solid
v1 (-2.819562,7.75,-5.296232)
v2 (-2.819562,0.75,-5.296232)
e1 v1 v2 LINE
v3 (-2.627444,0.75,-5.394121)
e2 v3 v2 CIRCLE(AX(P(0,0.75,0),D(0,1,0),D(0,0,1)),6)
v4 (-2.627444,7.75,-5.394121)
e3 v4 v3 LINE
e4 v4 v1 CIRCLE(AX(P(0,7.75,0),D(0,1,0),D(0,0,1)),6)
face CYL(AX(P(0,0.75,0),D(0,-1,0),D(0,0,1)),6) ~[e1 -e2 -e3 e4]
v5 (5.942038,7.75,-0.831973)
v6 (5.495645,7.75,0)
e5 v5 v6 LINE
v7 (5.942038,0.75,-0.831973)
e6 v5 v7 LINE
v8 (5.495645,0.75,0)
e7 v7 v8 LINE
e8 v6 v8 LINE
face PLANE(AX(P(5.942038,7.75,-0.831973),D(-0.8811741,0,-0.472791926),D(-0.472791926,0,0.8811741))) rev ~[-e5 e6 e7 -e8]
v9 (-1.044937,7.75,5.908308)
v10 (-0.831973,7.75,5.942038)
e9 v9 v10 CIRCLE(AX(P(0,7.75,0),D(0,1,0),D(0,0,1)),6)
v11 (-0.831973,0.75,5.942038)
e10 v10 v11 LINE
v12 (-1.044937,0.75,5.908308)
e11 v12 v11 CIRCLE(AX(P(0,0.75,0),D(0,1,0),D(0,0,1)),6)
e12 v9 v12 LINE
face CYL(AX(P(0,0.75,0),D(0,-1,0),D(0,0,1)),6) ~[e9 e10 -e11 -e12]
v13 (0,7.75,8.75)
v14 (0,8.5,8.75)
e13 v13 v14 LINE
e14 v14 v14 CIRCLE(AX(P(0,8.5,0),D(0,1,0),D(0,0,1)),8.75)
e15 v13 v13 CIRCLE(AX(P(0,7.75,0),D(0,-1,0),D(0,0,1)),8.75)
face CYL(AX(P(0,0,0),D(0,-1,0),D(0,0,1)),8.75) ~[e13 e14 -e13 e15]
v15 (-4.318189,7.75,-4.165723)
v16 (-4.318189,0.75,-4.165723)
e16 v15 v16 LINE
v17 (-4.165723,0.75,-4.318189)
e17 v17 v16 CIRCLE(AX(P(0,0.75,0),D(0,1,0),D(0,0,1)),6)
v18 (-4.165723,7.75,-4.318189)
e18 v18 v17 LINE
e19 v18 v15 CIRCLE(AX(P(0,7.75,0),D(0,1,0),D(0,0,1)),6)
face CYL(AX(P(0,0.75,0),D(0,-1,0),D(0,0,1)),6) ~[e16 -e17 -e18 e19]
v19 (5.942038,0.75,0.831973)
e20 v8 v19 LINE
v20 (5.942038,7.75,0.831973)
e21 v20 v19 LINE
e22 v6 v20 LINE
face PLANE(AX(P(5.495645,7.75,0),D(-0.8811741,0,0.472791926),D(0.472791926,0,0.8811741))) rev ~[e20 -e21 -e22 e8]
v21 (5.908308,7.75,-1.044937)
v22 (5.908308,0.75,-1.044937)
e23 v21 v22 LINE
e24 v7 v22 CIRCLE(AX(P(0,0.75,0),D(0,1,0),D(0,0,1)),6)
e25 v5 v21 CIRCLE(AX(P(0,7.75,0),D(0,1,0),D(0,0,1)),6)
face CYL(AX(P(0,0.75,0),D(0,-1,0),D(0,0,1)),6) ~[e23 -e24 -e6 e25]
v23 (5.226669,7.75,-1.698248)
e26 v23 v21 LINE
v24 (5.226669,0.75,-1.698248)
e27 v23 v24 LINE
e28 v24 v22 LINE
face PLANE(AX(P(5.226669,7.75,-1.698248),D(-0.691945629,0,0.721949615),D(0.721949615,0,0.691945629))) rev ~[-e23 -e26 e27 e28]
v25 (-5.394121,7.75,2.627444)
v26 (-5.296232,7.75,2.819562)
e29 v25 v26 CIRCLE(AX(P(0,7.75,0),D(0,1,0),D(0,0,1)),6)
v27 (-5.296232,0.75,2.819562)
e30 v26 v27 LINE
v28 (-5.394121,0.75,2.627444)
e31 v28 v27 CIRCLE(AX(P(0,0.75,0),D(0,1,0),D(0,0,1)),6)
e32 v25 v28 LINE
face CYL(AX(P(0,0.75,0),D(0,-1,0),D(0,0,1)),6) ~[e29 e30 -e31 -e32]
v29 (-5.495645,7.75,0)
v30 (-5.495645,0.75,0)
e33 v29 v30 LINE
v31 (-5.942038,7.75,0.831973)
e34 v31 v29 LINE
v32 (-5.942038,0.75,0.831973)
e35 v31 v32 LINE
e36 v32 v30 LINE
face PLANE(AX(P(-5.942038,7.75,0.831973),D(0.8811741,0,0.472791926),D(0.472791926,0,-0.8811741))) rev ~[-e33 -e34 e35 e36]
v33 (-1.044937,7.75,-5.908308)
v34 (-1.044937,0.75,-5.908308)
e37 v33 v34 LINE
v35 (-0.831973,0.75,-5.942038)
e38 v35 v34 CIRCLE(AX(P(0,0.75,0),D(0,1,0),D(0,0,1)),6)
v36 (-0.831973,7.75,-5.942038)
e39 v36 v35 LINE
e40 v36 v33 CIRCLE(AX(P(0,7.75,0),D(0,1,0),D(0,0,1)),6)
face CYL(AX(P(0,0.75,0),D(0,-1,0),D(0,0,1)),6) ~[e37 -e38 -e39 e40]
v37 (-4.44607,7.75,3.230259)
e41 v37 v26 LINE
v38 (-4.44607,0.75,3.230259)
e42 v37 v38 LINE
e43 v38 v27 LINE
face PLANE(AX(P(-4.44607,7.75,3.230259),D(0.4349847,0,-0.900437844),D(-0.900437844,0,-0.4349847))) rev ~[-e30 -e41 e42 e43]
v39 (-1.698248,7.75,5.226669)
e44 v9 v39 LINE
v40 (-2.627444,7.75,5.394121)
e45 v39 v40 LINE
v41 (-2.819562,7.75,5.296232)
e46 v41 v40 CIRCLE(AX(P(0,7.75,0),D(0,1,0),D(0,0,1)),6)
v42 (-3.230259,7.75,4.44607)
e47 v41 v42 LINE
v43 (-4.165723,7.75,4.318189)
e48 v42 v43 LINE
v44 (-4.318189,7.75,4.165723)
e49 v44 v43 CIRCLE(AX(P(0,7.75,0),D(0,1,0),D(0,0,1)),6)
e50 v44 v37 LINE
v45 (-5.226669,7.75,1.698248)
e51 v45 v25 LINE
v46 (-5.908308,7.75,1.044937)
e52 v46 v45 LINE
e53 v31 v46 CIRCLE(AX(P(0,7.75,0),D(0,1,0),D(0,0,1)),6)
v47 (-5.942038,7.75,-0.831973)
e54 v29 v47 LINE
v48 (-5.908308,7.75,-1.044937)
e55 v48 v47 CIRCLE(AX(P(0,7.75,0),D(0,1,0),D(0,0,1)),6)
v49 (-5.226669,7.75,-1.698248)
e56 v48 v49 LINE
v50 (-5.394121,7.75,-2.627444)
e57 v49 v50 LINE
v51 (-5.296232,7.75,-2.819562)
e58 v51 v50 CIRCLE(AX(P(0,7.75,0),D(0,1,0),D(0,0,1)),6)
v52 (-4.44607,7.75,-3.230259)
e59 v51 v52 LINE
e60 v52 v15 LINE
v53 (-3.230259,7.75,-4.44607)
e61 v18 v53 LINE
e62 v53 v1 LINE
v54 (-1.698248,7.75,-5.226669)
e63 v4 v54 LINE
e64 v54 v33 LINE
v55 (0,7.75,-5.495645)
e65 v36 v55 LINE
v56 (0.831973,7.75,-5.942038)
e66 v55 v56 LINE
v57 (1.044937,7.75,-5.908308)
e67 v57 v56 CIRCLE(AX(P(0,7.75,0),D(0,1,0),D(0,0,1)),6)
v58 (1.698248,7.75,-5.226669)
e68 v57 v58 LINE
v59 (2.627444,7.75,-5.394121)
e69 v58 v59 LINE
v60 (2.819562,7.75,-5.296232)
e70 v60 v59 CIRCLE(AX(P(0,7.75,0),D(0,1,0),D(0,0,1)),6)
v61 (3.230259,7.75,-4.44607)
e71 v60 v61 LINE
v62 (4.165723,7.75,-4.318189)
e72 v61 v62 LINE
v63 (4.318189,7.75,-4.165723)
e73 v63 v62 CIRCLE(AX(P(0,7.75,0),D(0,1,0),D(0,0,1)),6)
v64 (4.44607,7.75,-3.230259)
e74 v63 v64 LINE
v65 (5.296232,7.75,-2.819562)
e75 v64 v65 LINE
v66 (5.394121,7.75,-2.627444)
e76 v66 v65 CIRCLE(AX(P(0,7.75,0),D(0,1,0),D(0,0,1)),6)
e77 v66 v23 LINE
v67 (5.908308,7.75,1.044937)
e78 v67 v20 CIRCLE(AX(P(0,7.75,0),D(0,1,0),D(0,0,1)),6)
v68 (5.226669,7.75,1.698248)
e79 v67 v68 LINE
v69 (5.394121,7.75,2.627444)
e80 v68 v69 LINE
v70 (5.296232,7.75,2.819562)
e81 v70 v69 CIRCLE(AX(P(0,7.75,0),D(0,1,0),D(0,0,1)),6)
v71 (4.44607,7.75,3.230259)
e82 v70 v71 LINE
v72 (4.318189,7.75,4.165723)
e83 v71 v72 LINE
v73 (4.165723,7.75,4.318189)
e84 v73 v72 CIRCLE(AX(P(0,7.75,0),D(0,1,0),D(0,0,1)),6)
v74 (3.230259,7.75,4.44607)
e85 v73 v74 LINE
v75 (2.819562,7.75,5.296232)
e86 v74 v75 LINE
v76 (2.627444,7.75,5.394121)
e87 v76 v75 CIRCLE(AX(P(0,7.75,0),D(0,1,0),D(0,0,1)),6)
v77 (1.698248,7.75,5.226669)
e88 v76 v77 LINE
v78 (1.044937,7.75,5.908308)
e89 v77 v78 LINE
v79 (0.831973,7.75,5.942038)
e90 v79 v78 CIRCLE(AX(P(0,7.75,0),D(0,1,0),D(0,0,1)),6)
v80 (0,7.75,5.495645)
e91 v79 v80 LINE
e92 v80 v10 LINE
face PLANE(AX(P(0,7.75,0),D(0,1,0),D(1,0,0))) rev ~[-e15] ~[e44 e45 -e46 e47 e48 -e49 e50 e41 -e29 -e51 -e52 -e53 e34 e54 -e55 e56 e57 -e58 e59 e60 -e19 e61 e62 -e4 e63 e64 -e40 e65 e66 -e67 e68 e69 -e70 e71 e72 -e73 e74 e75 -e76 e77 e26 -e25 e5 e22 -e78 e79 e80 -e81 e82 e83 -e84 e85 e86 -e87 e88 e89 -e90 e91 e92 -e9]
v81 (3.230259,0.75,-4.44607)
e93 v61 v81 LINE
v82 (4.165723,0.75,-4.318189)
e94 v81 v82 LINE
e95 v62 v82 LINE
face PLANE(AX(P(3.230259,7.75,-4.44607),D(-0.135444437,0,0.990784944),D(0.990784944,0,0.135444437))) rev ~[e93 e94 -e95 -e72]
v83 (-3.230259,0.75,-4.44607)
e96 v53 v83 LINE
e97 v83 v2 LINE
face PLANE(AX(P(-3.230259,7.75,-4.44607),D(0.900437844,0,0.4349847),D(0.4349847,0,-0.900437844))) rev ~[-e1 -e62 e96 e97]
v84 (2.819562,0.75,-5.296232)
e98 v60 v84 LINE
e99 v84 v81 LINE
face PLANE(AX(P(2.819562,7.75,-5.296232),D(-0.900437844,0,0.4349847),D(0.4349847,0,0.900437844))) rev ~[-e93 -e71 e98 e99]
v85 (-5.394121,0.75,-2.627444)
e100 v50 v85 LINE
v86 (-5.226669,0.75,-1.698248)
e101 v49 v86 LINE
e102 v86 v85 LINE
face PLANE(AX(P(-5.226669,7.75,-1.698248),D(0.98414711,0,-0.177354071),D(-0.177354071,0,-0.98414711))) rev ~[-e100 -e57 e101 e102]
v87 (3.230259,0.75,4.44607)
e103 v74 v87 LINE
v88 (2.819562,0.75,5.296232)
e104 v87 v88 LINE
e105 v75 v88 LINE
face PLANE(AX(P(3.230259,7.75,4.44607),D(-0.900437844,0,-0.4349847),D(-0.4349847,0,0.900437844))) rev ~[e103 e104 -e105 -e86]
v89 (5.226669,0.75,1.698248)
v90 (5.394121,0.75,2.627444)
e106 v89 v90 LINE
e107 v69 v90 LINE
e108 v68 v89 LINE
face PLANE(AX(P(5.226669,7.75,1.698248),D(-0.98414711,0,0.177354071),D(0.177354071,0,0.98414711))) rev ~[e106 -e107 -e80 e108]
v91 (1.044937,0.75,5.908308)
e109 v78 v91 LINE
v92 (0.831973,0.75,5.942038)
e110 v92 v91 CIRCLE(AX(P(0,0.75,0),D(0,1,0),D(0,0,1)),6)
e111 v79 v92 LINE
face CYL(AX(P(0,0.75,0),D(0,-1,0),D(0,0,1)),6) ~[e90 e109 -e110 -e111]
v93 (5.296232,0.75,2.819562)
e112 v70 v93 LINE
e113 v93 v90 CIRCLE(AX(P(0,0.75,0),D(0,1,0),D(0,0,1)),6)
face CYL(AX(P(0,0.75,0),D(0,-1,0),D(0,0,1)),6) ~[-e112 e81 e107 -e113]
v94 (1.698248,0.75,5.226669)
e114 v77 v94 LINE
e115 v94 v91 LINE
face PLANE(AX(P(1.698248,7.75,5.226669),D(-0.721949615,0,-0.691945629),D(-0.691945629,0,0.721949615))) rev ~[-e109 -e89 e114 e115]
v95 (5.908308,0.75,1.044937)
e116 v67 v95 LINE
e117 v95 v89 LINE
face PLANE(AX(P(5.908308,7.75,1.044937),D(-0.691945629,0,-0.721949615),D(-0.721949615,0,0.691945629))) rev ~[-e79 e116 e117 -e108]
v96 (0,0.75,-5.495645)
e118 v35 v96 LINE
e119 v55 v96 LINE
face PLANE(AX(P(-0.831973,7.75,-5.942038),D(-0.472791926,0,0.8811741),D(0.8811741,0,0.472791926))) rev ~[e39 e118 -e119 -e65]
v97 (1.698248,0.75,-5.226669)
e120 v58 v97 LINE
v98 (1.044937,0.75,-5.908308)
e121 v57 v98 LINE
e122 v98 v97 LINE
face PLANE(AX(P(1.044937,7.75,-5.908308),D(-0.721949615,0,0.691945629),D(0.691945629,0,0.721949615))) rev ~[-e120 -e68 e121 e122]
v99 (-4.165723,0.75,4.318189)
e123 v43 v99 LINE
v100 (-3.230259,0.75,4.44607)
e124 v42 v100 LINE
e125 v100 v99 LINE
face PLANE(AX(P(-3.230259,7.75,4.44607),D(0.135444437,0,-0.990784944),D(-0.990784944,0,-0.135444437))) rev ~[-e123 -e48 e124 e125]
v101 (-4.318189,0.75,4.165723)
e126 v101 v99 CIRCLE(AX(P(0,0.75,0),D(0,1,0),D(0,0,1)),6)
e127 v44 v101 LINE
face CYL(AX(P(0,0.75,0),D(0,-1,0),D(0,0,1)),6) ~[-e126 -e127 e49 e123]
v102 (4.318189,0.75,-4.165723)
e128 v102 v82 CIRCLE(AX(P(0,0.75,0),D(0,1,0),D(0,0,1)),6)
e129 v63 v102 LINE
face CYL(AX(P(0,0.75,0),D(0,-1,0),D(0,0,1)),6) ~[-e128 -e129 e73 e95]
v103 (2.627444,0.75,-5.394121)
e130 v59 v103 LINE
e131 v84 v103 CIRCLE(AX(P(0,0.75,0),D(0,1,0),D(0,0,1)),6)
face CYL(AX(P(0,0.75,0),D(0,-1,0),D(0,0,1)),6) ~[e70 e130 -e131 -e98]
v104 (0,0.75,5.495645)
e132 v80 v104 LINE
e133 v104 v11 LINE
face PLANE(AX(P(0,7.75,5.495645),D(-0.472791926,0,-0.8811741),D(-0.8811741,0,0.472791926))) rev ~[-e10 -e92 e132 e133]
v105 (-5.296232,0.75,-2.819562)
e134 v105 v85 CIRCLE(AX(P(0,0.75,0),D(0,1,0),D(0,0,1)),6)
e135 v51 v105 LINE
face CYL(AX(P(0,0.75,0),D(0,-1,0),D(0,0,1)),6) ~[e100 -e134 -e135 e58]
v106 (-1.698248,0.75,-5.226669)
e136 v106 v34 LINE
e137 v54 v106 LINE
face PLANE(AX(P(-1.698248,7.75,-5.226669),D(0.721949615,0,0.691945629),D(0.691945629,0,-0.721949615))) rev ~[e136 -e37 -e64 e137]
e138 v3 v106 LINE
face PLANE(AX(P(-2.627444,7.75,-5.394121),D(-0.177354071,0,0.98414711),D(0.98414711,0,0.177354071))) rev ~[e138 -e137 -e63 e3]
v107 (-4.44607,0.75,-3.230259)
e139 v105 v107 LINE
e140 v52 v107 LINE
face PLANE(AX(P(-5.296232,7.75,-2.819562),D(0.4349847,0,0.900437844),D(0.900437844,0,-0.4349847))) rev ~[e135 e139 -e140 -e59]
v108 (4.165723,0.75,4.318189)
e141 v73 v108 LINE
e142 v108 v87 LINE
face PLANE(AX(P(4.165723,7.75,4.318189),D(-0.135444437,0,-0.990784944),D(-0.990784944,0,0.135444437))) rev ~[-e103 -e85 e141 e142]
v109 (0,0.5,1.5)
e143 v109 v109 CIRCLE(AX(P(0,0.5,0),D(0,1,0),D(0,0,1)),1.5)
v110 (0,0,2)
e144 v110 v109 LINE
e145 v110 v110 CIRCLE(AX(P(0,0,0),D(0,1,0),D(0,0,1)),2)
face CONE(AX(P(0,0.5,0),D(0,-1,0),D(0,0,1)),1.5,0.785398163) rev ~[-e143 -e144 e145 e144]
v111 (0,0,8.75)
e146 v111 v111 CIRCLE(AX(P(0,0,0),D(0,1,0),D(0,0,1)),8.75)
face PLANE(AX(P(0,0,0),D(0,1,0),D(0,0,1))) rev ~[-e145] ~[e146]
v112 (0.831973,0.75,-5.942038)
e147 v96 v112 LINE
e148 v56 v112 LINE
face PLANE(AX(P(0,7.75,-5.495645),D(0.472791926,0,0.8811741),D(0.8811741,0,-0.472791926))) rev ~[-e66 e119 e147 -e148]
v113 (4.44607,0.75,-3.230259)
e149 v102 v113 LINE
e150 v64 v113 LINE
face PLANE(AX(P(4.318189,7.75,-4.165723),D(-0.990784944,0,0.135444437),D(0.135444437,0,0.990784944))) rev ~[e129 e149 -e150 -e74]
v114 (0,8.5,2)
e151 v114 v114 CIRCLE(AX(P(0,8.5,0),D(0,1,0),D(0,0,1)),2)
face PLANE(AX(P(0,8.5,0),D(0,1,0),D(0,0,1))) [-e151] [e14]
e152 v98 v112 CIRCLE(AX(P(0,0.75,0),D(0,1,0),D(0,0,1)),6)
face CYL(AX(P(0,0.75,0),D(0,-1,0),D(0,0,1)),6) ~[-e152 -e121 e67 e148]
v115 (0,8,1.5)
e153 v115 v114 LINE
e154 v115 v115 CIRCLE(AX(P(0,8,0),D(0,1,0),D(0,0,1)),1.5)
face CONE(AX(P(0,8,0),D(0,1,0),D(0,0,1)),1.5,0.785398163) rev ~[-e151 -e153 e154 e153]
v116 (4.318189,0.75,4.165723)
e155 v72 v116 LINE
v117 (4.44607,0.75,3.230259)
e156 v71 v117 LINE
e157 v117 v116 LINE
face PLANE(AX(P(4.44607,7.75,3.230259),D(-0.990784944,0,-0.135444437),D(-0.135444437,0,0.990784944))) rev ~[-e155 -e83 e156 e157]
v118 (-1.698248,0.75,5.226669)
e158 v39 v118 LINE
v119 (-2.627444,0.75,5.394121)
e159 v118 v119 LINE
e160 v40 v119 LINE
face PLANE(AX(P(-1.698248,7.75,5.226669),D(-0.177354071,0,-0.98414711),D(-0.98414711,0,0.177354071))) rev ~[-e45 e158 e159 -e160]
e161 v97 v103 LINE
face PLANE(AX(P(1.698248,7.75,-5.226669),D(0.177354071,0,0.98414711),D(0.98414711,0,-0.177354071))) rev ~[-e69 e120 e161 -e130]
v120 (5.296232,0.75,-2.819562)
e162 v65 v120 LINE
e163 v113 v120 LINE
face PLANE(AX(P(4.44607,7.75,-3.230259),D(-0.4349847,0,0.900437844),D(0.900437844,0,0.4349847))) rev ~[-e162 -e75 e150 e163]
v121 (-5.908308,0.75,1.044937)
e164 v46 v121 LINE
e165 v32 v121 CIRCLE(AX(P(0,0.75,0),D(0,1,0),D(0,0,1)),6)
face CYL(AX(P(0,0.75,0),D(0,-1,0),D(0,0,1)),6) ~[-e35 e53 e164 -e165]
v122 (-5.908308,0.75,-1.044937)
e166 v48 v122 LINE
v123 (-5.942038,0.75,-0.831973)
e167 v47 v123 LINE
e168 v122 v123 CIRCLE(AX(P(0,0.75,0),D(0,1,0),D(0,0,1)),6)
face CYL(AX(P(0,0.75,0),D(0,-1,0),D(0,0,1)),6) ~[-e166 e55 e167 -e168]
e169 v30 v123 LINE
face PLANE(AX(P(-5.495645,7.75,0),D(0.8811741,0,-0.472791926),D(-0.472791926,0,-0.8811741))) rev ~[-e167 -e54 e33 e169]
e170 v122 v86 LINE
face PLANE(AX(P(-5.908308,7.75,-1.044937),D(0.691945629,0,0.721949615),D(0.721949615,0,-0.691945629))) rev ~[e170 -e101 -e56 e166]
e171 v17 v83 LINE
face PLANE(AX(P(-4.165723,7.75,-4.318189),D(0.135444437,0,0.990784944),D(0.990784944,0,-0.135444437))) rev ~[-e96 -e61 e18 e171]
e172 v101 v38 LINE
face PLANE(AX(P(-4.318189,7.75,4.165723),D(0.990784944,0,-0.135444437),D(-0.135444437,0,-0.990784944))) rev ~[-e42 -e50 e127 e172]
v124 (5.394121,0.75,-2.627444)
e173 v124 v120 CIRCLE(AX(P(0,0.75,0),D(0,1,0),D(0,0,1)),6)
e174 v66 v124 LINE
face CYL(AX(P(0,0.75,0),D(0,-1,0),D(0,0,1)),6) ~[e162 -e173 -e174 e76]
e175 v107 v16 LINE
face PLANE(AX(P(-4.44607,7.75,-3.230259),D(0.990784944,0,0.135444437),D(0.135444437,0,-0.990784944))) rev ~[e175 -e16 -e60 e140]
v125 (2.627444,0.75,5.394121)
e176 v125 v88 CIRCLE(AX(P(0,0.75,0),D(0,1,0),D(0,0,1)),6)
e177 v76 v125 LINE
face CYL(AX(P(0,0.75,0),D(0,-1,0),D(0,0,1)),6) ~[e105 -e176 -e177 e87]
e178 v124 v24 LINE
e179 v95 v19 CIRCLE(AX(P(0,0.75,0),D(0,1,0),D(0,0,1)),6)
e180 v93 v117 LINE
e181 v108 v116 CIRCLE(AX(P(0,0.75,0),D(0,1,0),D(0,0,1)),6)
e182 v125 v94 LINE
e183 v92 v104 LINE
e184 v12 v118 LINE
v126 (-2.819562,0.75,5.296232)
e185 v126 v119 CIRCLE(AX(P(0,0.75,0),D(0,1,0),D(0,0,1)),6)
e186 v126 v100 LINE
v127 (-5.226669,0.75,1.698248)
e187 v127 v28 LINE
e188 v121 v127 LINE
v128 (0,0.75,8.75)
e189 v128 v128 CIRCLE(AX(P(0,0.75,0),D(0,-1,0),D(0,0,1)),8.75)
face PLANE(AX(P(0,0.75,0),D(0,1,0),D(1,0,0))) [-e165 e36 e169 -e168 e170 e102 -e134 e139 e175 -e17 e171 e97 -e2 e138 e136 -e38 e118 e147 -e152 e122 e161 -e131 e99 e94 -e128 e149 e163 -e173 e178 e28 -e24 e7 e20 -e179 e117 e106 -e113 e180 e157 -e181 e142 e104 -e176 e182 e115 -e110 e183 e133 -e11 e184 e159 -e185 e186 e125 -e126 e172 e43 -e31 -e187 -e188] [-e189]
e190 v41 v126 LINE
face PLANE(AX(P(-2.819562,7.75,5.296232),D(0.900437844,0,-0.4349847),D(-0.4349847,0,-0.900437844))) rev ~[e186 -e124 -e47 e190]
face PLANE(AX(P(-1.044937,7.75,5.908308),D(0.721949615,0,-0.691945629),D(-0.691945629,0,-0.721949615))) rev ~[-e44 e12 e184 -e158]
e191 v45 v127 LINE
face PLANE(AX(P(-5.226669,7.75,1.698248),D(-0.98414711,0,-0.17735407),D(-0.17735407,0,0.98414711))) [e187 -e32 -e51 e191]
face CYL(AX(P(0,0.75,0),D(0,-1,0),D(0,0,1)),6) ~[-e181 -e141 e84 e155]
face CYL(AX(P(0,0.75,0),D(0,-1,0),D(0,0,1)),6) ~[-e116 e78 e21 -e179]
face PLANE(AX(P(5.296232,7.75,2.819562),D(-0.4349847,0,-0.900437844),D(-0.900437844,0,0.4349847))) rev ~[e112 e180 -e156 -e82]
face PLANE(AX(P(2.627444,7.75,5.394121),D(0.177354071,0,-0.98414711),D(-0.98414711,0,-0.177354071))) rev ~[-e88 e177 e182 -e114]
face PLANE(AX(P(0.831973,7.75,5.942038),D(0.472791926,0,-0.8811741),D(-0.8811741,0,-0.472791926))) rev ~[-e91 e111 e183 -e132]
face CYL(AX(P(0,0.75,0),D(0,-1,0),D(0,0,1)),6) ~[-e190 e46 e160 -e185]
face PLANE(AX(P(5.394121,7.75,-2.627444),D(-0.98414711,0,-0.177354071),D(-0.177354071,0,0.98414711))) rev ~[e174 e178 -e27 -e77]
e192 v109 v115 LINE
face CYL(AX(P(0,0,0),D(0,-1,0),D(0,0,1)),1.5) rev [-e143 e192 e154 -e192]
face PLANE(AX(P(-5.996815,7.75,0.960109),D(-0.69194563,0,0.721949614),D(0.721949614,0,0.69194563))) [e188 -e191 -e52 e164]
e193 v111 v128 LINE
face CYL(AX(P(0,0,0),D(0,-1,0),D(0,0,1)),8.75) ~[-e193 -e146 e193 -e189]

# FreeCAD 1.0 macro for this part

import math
import FreeCAD as App
import Part
import Sketcher
Q = App.Units.Quantity


def edges_at(feature, points):
    """Names of the edges that pass closest to the given points."""
    edges = feature.Shape.Edges
    near = lambda p: min(range(len(edges)), key=lambda i: edges[i].distToShape(Part.Vertex(*p))[0])
    return sorted({f"Edge{near(p) + 1}" for p in points})


def add_polygon(sketch, points):
    """Adds a closed chain of lines whose ends are joined by coincident constraints."""
    first, n = sketch.GeometryCount, len(points)
    for a, b in zip(points, points[1:] + points[:1]):
        sketch.addGeometry(Part.LineSegment(App.Vector(*a, 0), App.Vector(*b, 0)), False)
    for i in range(n):
        sketch.addConstraint(Sketcher.Constraint("Coincident", first + i, 2, first + (i + 1) % n, 1))

doc = App.newDocument("Part")
body = doc.addObject("PartDesign::Body", "Body")

# Sketch on XZ plane
sketch1 = doc.addObject("Sketcher::SketchObject", "Sketch")
body.addObject(sketch1)
sketch1.AttachmentSupport = (doc.XZ_Plane, [""])
sketch1.MapMode = "FlatFace"
sketch1.addGeometry([
    Part.Circle(App.Vector(0, 0, 0), App.Vector(0, 0, 1), 8.8),
    Part.Circle(App.Vector(0, 0, 0), App.Vector(0, 0, 1), 1.5),
], False)
sketch1.addConstraint([
    Sketcher.Constraint("Coincident", 0, 3, -1, 1),
    Sketcher.Constraint("Coincident", 1, 3, -1, 1),
    Sketcher.Constraint("Diameter", 1, 3.0),
    Sketcher.Constraint("Diameter", 0, 17.5),
])
pad1 = doc.addObject("PartDesign::Pad", "Pad")
body.addObject(pad1)
pad1.Profile = sketch1
pad1.Length = 8.5
pad1.Reversed = True

# Sketch on XZ plane
sketch2 = doc.addObject("Sketcher::SketchObject", "Sketch001")
body.addObject(sketch2)
sketch2.AttachmentSupport = (doc.XZ_Plane, [""])
sketch2.MapMode = "FlatFace"
sketch2.AttachmentOffset = App.Placement(App.Vector(0, 0, -4.25), App.Rotation())
sketch2.addGeometry([
    Part.Circle(App.Vector(0, 0, 0), App.Vector(0, 0, 1), 9),
    Part.Circle(App.Vector(0, 0, 0), App.Vector(0, 0, 1), 6),
], False)
sketch2.addConstraint([
    Sketcher.Constraint("Coincident", 0, 3, -1, 1),
    Sketcher.Constraint("Coincident", 1, 3, -1, 1),
    Sketcher.Constraint("Diameter", 0, 18.0),
    Sketcher.Constraint("Diameter", 1, 12.0),
])
pocket1 = doc.addObject("PartDesign::Pocket", "Pocket")
body.addObject(pocket1)
pocket1.Profile = sketch2
pocket1.Type = "TwoLengths"
pocket1.Length = 3.5
pocket1.Length2 = 3.5

# Sketch on XZ plane
sketch3 = doc.addObject("Sketcher::SketchObject", "Sketch002")
body.addObject(sketch3)
sketch3.AttachmentSupport = (doc.XZ_Plane, [""])
sketch3.MapMode = "FlatFace"
sketch3.AttachmentOffset = App.Placement(App.Vector(0, 0, -7.75), App.Rotation())
sketch3.addGeometry(Part.ArcOfCircle(Part.Circle(App.Vector(0, 0, 0), App.Vector(0, 0, 1), 6), math.radians(-61.97), math.radians(-54)), False)  # 0
sketch3.addGeometry(Part.LineSegment(App.Vector(2.8, -5.3, 0), App.Vector(3.2, -4.4, 0)), False)  # 1
sketch3.addGeometry(Part.LineSegment(App.Vector(3.2, -4.4, 0), App.Vector(4.2, -4.3, 0)), False)  # 2
sketch3.addGeometry(Part.ArcOfCircle(Part.Circle(App.Vector(0, 0, 0), App.Vector(0, 0, 1), 6), math.radians(-54), math.radians(-46.03)), False)  # 3
sketch3.addGeometry(Part.ArcOfCircle(Part.Circle(App.Vector(0, 0, 0), App.Vector(0, 0, 1), 6), math.radians(-43.97), math.radians(-36)), False)  # 4
sketch3.addGeometry(Part.LineSegment(App.Vector(4.3, -4.2, 0), App.Vector(4.4, -3.2, 0)), False)  # 5
sketch3.addGeometry(Part.LineSegment(App.Vector(4.4, -3.2, 0), App.Vector(5.3, -2.8, 0)), False)  # 6
sketch3.addGeometry(Part.ArcOfCircle(Part.Circle(App.Vector(0, 0, 0), App.Vector(0, 0, 1), 6), math.radians(-36), math.radians(-28.03)), False)  # 7
sketch3.addGeometry(Part.ArcOfCircle(Part.Circle(App.Vector(0, 0, 0), App.Vector(0, 0, 1), 6), math.radians(-79.97), math.radians(-72)), False)  # 8
sketch3.addGeometry(Part.LineSegment(App.Vector(1, -5.9, 0), App.Vector(1.7, -5.2, 0)), False)  # 9
sketch3.addGeometry(Part.LineSegment(App.Vector(1.7, -5.2, 0), App.Vector(2.6, -5.4, 0)), False)  # 10
sketch3.addGeometry(Part.ArcOfCircle(Part.Circle(App.Vector(0, 0, 0), App.Vector(0, 0, 1), 6), math.radians(-72), math.radians(-64.03)), False)  # 11
sketch3.addGeometry(Part.ArcOfCircle(Part.Circle(App.Vector(0, 0, 0), App.Vector(0, 0, 1), 6), math.radians(-90), math.radians(-82.03)), False)  # 12
sketch3.addGeometry(Part.ArcOfCircle(Part.Circle(App.Vector(0, 0, 0), App.Vector(0, 0, 1), 6), math.radians(-97.97), math.radians(-90)), False)  # 13
sketch3.addGeometry(Part.LineSegment(App.Vector(-0.8, -5.9, 0), App.Vector(0, -5.5, 0)), False)  # 14
sketch3.addGeometry(Part.LineSegment(App.Vector(0, -5.5, 0), App.Vector(0.8, -5.9, 0)), False)  # 15
sketch3.addGeometry(Part.LineSegment(App.Vector(-1.7, -5.2, 0), App.Vector(-1, -5.9, 0)), False)  # 16
sketch3.addGeometry(Part.ArcOfCircle(Part.Circle(App.Vector(0, 0, 0), App.Vector(0, 0, 1), 6), math.radians(-108), math.radians(-100.03)), False)  # 17
sketch3.addGeometry(Part.ArcOfCircle(Part.Circle(App.Vector(0, 0, 0), App.Vector(0, 0, 1), 6), math.radians(-115.97), math.radians(-108)), False)  # 18
sketch3.addGeometry(Part.LineSegment(App.Vector(-2.6, -5.4, 0), App.Vector(-1.7, -5.2, 0)), False)  # 19
sketch3.addGeometry(Part.LineSegment(App.Vector(-3.2, -4.4, 0), App.Vector(-2.8, -5.3, 0)), False)  # 20
sketch3.addGeometry(Part.ArcOfCircle(Part.Circle(App.Vector(0, 0, 0), App.Vector(0, 0, 1), 6), math.radians(-126), math.radians(-118.03)), False)  # 21
sketch3.addGeometry(Part.ArcOfCircle(Part.Circle(App.Vector(0, 0, 0), App.Vector(0, 0, 1), 6), math.radians(-133.97), math.radians(-126)), False)  # 22
sketch3.addGeometry(Part.LineSegment(App.Vector(-4.2, -4.3, 0), App.Vector(-3.2, -4.4, 0)), False)  # 23
sketch3.addGeometry(Part.LineSegment(App.Vector(-4.4, -3.2, 0), App.Vector(-4.3, -4.2, 0)), False)  # 24
sketch3.addGeometry(Part.ArcOfCircle(Part.Circle(App.Vector(0, 0, 0), App.Vector(0, 0, 1), 6), math.radians(-144), math.radians(-136.03)), False)  # 25
sketch3.addGeometry(Part.ArcOfCircle(Part.Circle(App.Vector(0, 0, 0), App.Vector(0, 0, 1), 6), math.radians(-151.97), math.radians(-144)), False)  # 26
sketch3.addGeometry(Part.LineSegment(App.Vector(-5.3, -2.8, 0), App.Vector(-4.4, -3.2, 0)), False)  # 27
sketch3.addGeometry(Part.LineSegment(App.Vector(-5.2, -1.7, 0), App.Vector(-5.4, -2.6, 0)), False)  # 28
sketch3.addGeometry(Part.ArcOfCircle(Part.Circle(App.Vector(0, 0, 0), App.Vector(0, 0, 1), 6), math.radians(-162), math.radians(-154.03)), False)  # 29
sketch3.addGeometry(Part.ArcOfCircle(Part.Circle(App.Vector(0, 0, 0), App.Vector(0, 0, 1), 6), math.radians(-169.97), math.radians(-162)), False)  # 30
sketch3.addGeometry(Part.LineSegment(App.Vector(-5.9, -1, 0), App.Vector(-5.2, -1.7, 0)), False)  # 31
sketch3.addGeometry(Part.ArcOfCircle(Part.Circle(App.Vector(0, 0, 0), App.Vector(0, 0, 1), 6), math.radians(-25.97), math.radians(-18)), False)  # 32
sketch3.addGeometry(Part.LineSegment(App.Vector(5.4, -2.6, 0), App.Vector(5.2, -1.7, 0)), False)  # 33
sketch3.addGeometry(Part.LineSegment(App.Vector(5.2, -1.7, 0), App.Vector(5.9, -1, 0)), False)  # 34
sketch3.addGeometry(Part.ArcOfCircle(Part.Circle(App.Vector(0, 0, 0), App.Vector(0, 0, 1), 6), math.radians(-18), math.radians(-10.03)), False)  # 35
sketch3.addGeometry(Part.ArcOfCircle(Part.Circle(App.Vector(0, 0, 0), App.Vector(0, 0, 1), 6), math.radians(-7.97), math.radians(0)), False)  # 36
sketch3.addGeometry(Part.LineSegment(App.Vector(5.9, -0.8, 0), App.Vector(5.5, 0, 0)), False)  # 37
sketch3.addGeometry(Part.LineSegment(App.Vector(5.5, 0, 0), App.Vector(5.9, 0.8, 0)), False)  # 38
sketch3.addGeometry(Part.ArcOfCircle(Part.Circle(App.Vector(0, 0, 0), App.Vector(0, 0, 1), 6), math.radians(0), math.radians(7.97)), False)  # 39
sketch3.addGeometry(Part.ArcOfCircle(Part.Circle(App.Vector(0, 0, 0), App.Vector(0, 0, 1), 6), math.radians(10.03), math.radians(18)), False)  # 40
sketch3.addGeometry(Part.LineSegment(App.Vector(5.9, 1, 0), App.Vector(5.2, 1.7, 0)), False)  # 41
sketch3.addGeometry(Part.LineSegment(App.Vector(5.2, 1.7, 0), App.Vector(5.4, 2.6, 0)), False)  # 42
sketch3.addGeometry(Part.ArcOfCircle(Part.Circle(App.Vector(0, 0, 0), App.Vector(0, 0, 1), 6), math.radians(18), math.radians(25.97)), False)  # 43
sketch3.addGeometry(Part.LineSegment(App.Vector(-5.5, 0, 0), App.Vector(-5.9, -0.8, 0)), False)  # 44
sketch3.addGeometry(Part.ArcOfCircle(Part.Circle(App.Vector(0, 0, 0), App.Vector(0, 0, 1), 6), math.radians(180), math.radians(187.97)), False)  # 45
sketch3.addGeometry(Part.ArcOfCircle(Part.Circle(App.Vector(0, 0, 0), App.Vector(0, 0, 1), 6), math.radians(172.03), math.radians(180)), False)  # 46
sketch3.addGeometry(Part.LineSegment(App.Vector(-5.9, 0.8, 0), App.Vector(-5.5, 0, 0)), False)  # 47
sketch3.addGeometry(Part.LineSegment(App.Vector(-4.4, 3.2, 0), App.Vector(-5.3, 2.8, 0)), False)  # 48
sketch3.addGeometry(Part.ArcOfCircle(Part.Circle(App.Vector(0, 0, 0), App.Vector(0, 0, 1), 6), math.radians(144), math.radians(151.97)), False)  # 49
sketch3.addGeometry(Part.ArcOfCircle(Part.Circle(App.Vector(0, 0, 0), App.Vector(0, 0, 1), 6), math.radians(136.03), math.radians(144)), False)  # 50
sketch3.addGeometry(Part.LineSegment(App.Vector(-4.3, 4.2, 0), App.Vector(-4.4, 3.2, 0)), False)  # 51
sketch3.addGeometry(Part.LineSegment(App.Vector(-3.2, 4.4, 0), App.Vector(-4.2, 4.3, 0)), False)  # 52
sketch3.addGeometry(Part.ArcOfCircle(Part.Circle(App.Vector(0, 0, 0), App.Vector(0, 0, 1), 6), math.radians(126), math.radians(133.97)), False)  # 53
sketch3.addGeometry(Part.ArcOfCircle(Part.Circle(App.Vector(0, 0, 0), App.Vector(0, 0, 1), 6), math.radians(118.03), math.radians(126)), False)  # 54
sketch3.addGeometry(Part.LineSegment(App.Vector(-2.8, 5.3, 0), App.Vector(-3.2, 4.4, 0)), False)  # 55
sketch3.addGeometry(Part.LineSegment(App.Vector(-1.7, 5.2, 0), App.Vector(-2.6, 5.4, 0)), False)  # 56
sketch3.addGeometry(Part.ArcOfCircle(Part.Circle(App.Vector(0, 0, 0), App.Vector(0, 0, 1), 6), math.radians(108), math.radians(115.97)), False)  # 57
sketch3.addGeometry(Part.ArcOfCircle(Part.Circle(App.Vector(0, 0, 0), App.Vector(0, 0, 1), 6), math.radians(100.03), math.radians(108)), False)  # 58
sketch3.addGeometry(Part.LineSegment(App.Vector(-1, 5.9, 0), App.Vector(-1.7, 5.2, 0)), False)  # 59
sketch3.addGeometry(Part.LineSegment(App.Vector(0, 5.5, 0), App.Vector(-0.8, 5.9, 0)), False)  # 60
sketch3.addGeometry(Part.ArcOfCircle(Part.Circle(App.Vector(0, 0, 0), App.Vector(0, 0, 1), 6), math.radians(90), math.radians(97.97)), False)  # 61
sketch3.addGeometry(Part.ArcOfCircle(Part.Circle(App.Vector(0, 0, 0), App.Vector(0, 0, 1), 6), math.radians(82.03), math.radians(90)), False)  # 62
sketch3.addGeometry(Part.LineSegment(App.Vector(0.8, 5.9, 0), App.Vector(0, 5.5, 0)), False)  # 63
sketch3.addGeometry(Part.ArcOfCircle(Part.Circle(App.Vector(0, 0, 0), App.Vector(0, 0, 1), 6), math.radians(64.03), math.radians(72)), False)  # 64
sketch3.addGeometry(Part.LineSegment(App.Vector(2.6, 5.4, 0), App.Vector(1.7, 5.2, 0)), False)  # 65
sketch3.addGeometry(Part.LineSegment(App.Vector(1.7, 5.2, 0), App.Vector(1, 5.9, 0)), False)  # 66
sketch3.addGeometry(Part.ArcOfCircle(Part.Circle(App.Vector(0, 0, 0), App.Vector(0, 0, 1), 6), math.radians(72), math.radians(79.97)), False)  # 67
sketch3.addGeometry(Part.ArcOfCircle(Part.Circle(App.Vector(0, 0, 0), App.Vector(0, 0, 1), 6), math.radians(46.03), math.radians(54)), False)  # 68
sketch3.addGeometry(Part.LineSegment(App.Vector(4.2, 4.3, 0), App.Vector(3.2, 4.4, 0)), False)  # 69
sketch3.addGeometry(Part.LineSegment(App.Vector(3.2, 4.4, 0), App.Vector(2.8, 5.3, 0)), False)  # 70
sketch3.addGeometry(Part.ArcOfCircle(Part.Circle(App.Vector(0, 0, 0), App.Vector(0, 0, 1), 6), math.radians(54), math.radians(61.97)), False)  # 71
sketch3.addGeometry(Part.ArcOfCircle(Part.Circle(App.Vector(0, 0, 0), App.Vector(0, 0, 1), 6), math.radians(28.03), math.radians(36)), False)  # 72
sketch3.addGeometry(Part.LineSegment(App.Vector(5.3, 2.8, 0), App.Vector(4.4, 3.2, 0)), False)  # 73
sketch3.addGeometry(Part.LineSegment(App.Vector(4.4, 3.2, 0), App.Vector(4.3, 4.2, 0)), False)  # 74
sketch3.addGeometry(Part.ArcOfCircle(Part.Circle(App.Vector(0, 0, 0), App.Vector(0, 0, 1), 6), math.radians(36), math.radians(43.97)), False)  # 75
add_polygon(sketch3, [(-5.4, 2.7), (-5.2, 1.7), (-6, 1)])  # lines 76-78
sketch3.addConstraint([
    Sketcher.Constraint("Coincident", 0, 1, 1, 1),
    Sketcher.Constraint("Coincident", 1, 2, 2, 1),
    Sketcher.Constraint("Coincident", 2, 2, 3, 2),
    Sketcher.Constraint("Tangent", 3, 1, 0, 2),
    Sketcher.Constraint("Coincident", 4, 1, 5, 1),
    Sketcher.Constraint("Coincident", 5, 2, 6, 1),
    Sketcher.Constraint("Coincident", 6, 2, 7, 2),
    Sketcher.Constraint("Tangent", 7, 1, 4, 2),
    Sketcher.Constraint("Coincident", 8, 1, 9, 1),
    Sketcher.Constraint("Coincident", 9, 2, 10, 1),
    Sketcher.Constraint("Coincident", 10, 2, 11, 2),
    Sketcher.Constraint("Tangent", 11, 1, 8, 2),
    Sketcher.Constraint("Tangent", 12, 1, 13, 2),
    Sketcher.Constraint("Coincident", 13, 1, 14, 1),
    Sketcher.Constraint("Coincident", 14, 2, 15, 1),
    Sketcher.Constraint("Coincident", 15, 2, 12, 2),
    Sketcher.Constraint("Coincident", 16, 2, 17, 2),
    Sketcher.Constraint("Tangent", 17, 1, 18, 2),
    Sketcher.Constraint("Coincident", 18, 1, 19, 1),
    Sketcher.Constraint("Coincident", 19, 2, 16, 1),
    Sketcher.Constraint("Coincident", 20, 2, 21, 2),
    Sketcher.Constraint("Tangent", 21, 1, 22, 2),
    Sketcher.Constraint("Coincident", 22, 1, 23, 1),
    Sketcher.Constraint("Coincident", 23, 2, 20, 1),
    Sketcher.Constraint("Coincident", 24, 2, 25, 2),
    Sketcher.Constraint("Tangent", 25, 1, 26, 2),
    Sketcher.Constraint("Coincident", 26, 1, 27, 1),
    Sketcher.Constraint("Coincident", 27, 2, 24, 1),
    Sketcher.Constraint("Coincident", 28, 2, 29, 2),
    Sketcher.Constraint("Tangent", 29, 1, 30, 2),
    Sketcher.Constraint("Coincident", 30, 1, 31, 1),
    Sketcher.Constraint("Coincident", 31, 2, 28, 1),
    Sketcher.Constraint("Coincident", 32, 1, 33, 1),
    Sketcher.Constraint("Coincident", 33, 2, 34, 1),
    Sketcher.Constraint("Coincident", 34, 2, 35, 2),
    Sketcher.Constraint("Tangent", 35, 1, 32, 2),
    Sketcher.Constraint("Coincident", 36, 1, 37, 1),
    Sketcher.Constraint("Coincident", 37, 2, 38, 1),
    Sketcher.Constraint("Coincident", 38, 2, 39, 2),
    Sketcher.Constraint("Tangent", 39, 1, 36, 2),
    Sketcher.Constraint("Coincident", 40, 1, 41, 1),
    Sketcher.Constraint("Coincident", 41, 2, 42, 1),
    Sketcher.Constraint("Coincident", 42, 2, 43, 2),
    Sketcher.Constraint("Tangent", 43, 1, 40, 2),
    Sketcher.Constraint("Coincident", 44, 2, 45, 2),
    Sketcher.Constraint("Tangent", 45, 1, 46, 2),
    Sketcher.Constraint("Coincident", 46, 1, 47, 1),
    Sketcher.Constraint("Coincident", 47, 2, 44, 1),
    Sketcher.Constraint("Coincident", 48, 2, 49, 2),
    Sketcher.Constraint("Tangent", 49, 1, 50, 2),
    Sketcher.Constraint("Coincident", 50, 1, 51, 1),
    Sketcher.Constraint("Coincident", 51, 2, 48, 1),
    Sketcher.Constraint("Coincident", 52, 2, 53, 2),
    Sketcher.Constraint("Tangent", 53, 1, 54, 2),
    Sketcher.Constraint("Coincident", 54, 1, 55, 1),
    Sketcher.Constraint("Coincident", 55, 2, 52, 1),
    Sketcher.Constraint("Coincident", 56, 2, 57, 2),
    Sketcher.Constraint("Tangent", 57, 1, 58, 2),
    Sketcher.Constraint("Coincident", 58, 1, 59, 1),
    Sketcher.Constraint("Coincident", 59, 2, 56, 1),
    Sketcher.Constraint("Coincident", 60, 2, 61, 2),
    Sketcher.Constraint("Tangent", 61, 1, 62, 2),
    Sketcher.Constraint("Coincident", 62, 1, 63, 1),
    Sketcher.Constraint("Coincident", 63, 2, 60, 1),
    Sketcher.Constraint("Coincident", 64, 1, 65, 1),
    Sketcher.Constraint("Coincident", 65, 2, 66, 1),
    Sketcher.Constraint("Coincident", 66, 2, 67, 2),
    Sketcher.Constraint("Tangent", 67, 1, 64, 2),
    Sketcher.Constraint("Coincident", 68, 1, 69, 1),
    Sketcher.Constraint("Coincident", 69, 2, 70, 1),
    Sketcher.Constraint("Coincident", 70, 2, 71, 2),
    Sketcher.Constraint("Tangent", 71, 1, 68, 2),
    Sketcher.Constraint("Coincident", 72, 1, 73, 1),
    Sketcher.Constraint("Coincident", 73, 2, 74, 1),
    Sketcher.Constraint("Coincident", 74, 2, 75, 2),
    Sketcher.Constraint("Tangent", 75, 1, 72, 2),
    Sketcher.Constraint("Coincident", 0, 3, -1, 1),
    Sketcher.Constraint("Coincident", 4, 3, -1, 1),
    Sketcher.Constraint("Coincident", 8, 3, -1, 1),
    Sketcher.Constraint("Coincident", 12, 3, -1, 1),
    Sketcher.Constraint("Coincident", 17, 3, -1, 1),
    Sketcher.Constraint("Coincident", 21, 3, -1, 1),
    Sketcher.Constraint("Coincident", 25, 3, -1, 1),
    Sketcher.Constraint("Coincident", 29, 3, -1, 1),
    Sketcher.Constraint("Coincident", 32, 3, -1, 1),
    Sketcher.Constraint("Coincident", 36, 3, -1, 1),
    Sketcher.Constraint("Coincident", 40, 3, -1, 1),
    Sketcher.Constraint("Coincident", 45, 3, -1, 1),
    Sketcher.Constraint("Coincident", 49, 3, -1, 1),
    Sketcher.Constraint("Coincident", 53, 3, -1, 1),
    Sketcher.Constraint("Coincident", 57, 3, -1, 1),
    Sketcher.Constraint("Coincident", 61, 3, -1, 1),
    Sketcher.Constraint("Coincident", 64, 3, -1, 1),
    Sketcher.Constraint("Coincident", 68, 3, -1, 1),
    Sketcher.Constraint("Coincident", 72, 3, -1, 1),
    Sketcher.Constraint("Equal", 0, 3),
    Sketcher.Constraint("Equal", 3, 4),
    Sketcher.Constraint("Equal", 4, 7),
    Sketcher.Constraint("Equal", 7, 8),
    Sketcher.Constraint("Equal", 8, 11),
    Sketcher.Constraint("Equal", 11, 12),
    Sketcher.Constraint("Equal", 12, 13),
    Sketcher.Constraint("Equal", 13, 17),
    Sketcher.Constraint("Equal", 17, 18),
    Sketcher.Constraint("Equal", 18, 21),
    Sketcher.Constraint("Equal", 21, 22),
    Sketcher.Constraint("Equal", 22, 25),
    Sketcher.Constraint("Equal", 25, 26),
    Sketcher.Constraint("Equal", 26, 29),
    Sketcher.Constraint("Equal", 29, 30),
    Sketcher.Constraint("Equal", 30, 32),
    Sketcher.Constraint("Equal", 32, 35),
    Sketcher.Constraint("Equal", 35, 36),
    Sketcher.Constraint("Equal", 36, 39),
    Sketcher.Constraint("Equal", 39, 40),
    Sketcher.Constraint("Equal", 40, 43),
    Sketcher.Constraint("Equal", 43, 45),
    Sketcher.Constraint("Equal", 45, 46),
    Sketcher.Constraint("Equal", 46, 49),
    Sketcher.Constraint("Equal", 49, 50),
    Sketcher.Constraint("Equal", 50, 53),
    Sketcher.Constraint("Equal", 53, 54),
    Sketcher.Constraint("Equal", 54, 57),
    Sketcher.Constraint("Equal", 57, 58),
    Sketcher.Constraint("Equal", 58, 61),
    Sketcher.Constraint("Equal", 61, 62),
    Sketcher.Constraint("Equal", 62, 64),
    Sketcher.Constraint("Equal", 64, 67),
    Sketcher.Constraint("Equal", 67, 68),
    Sketcher.Constraint("Equal", 68, 71),
    Sketcher.Constraint("Equal", 71, 72),
    Sketcher.Constraint("Equal", 72, 75),
    Sketcher.Constraint("Symmetric", 31, 2, 41, 2, -1, 1),
    Sketcher.Constraint("Symmetric", 37, 2, 47, 2, -1, 1),
    Sketcher.Constraint("Symmetric", 5, 2, 51, 2, -1, 1),
    Sketcher.Constraint("Symmetric", 1, 2, 55, 2, -1, 1),
    Sketcher.Constraint("Symmetric", 9, 2, 59, 2, -1, 1),
    Sketcher.Constraint("Symmetric", 14, 2, 63, 2, -1, 1),
    Sketcher.Constraint("Symmetric", 19, 2, 65, 2, -1, 1),
    Sketcher.Constraint("Symmetric", 23, 2, 69, 2, -1, 1),
    Sketcher.Constraint("Symmetric", 27, 2, 73, 2, -1, 1),
    Sketcher.Constraint("Symmetric", 33, 2, 76, 2, -1, 1),
    Sketcher.Constraint("Symmetric", 9, 2, 19, 2, -2),
    Sketcher.Constraint("Symmetric", 1, 2, 23, 2, -2),
    Sketcher.Constraint("Symmetric", 5, 2, 27, 2, -2),
    Sketcher.Constraint("Symmetric", 31, 2, 33, 2, -2),
    Sketcher.Constraint("PointOnObject", 12, 1, -2),
    Sketcher.Constraint("PointOnObject", 14, 2, -2),
    Sketcher.Constraint("PointOnObject", 37, 2, -1),
    Sketcher.Constraint("PointOnObject", 39, 1, -1),
    Sketcher.Constraint("PointOnObject", 45, 1, -1),
    Sketcher.Constraint("PointOnObject", 61, 1, -2),
    Sketcher.Constraint("Perpendicular", 6, 20),
    Sketcher.Constraint("Perpendicular", 5, 23),
    Sketcher.Constraint("Perpendicular", 2, 24),
    Sketcher.Constraint("Perpendicular", 1, 27),
    Sketcher.Constraint("Perpendicular", 10, 28),
    Sketcher.Constraint("Perpendicular", 9, 31),
    Sketcher.Constraint("Perpendicular", 19, 33),
    Sketcher.Constraint("Perpendicular", 16, 34),
    Sketcher.Constraint("Perpendicular", 14, 37),
    Sketcher.Constraint("Perpendicular", 15, 38),
    Sketcher.Constraint("Parallel", 31, 41),
    Sketcher.Constraint("Parallel", 28, 42),
    Sketcher.Constraint("Parallel", 38, 44),
    Sketcher.Constraint("Parallel", 37, 47),
    Sketcher.Constraint("Perpendicular", 20, 48),
    Sketcher.Constraint("Perpendicular", 23, 51),
    Sketcher.Constraint("Perpendicular", 24, 52),
    Sketcher.Constraint("Perpendicular", 27, 55),
    Sketcher.Constraint("Perpendicular", 42, 56),
    Sketcher.Constraint("Perpendicular", 41, 59),
    Sketcher.Constraint("Perpendicular", 44, 60),
    Sketcher.Constraint("Perpendicular", 47, 63),
    Sketcher.Constraint("Perpendicular", 33, 65),
    Sketcher.Constraint("Perpendicular", 34, 66),
    Sketcher.Constraint("Perpendicular", 51, 69),
    Sketcher.Constraint("Perpendicular", 48, 70),
    Sketcher.Constraint("Perpendicular", 55, 73),
    Sketcher.Constraint("Perpendicular", 52, 74),
    Sketcher.Constraint("Perpendicular", 65, 76),
    Sketcher.Constraint("Perpendicular", 66, 77),
    Sketcher.Constraint("Horizontal", 13, 1, 15, 2),
    Sketcher.Constraint("Horizontal", 8, 1, 16, 2),
    Sketcher.Constraint("Horizontal", 11, 1, 17, 1),
    Sketcher.Constraint("Horizontal", 10, 2, 18, 1),
    Sketcher.Constraint("Horizontal", 0, 1, 20, 2),
    Sketcher.Constraint("Horizontal", 3, 1, 21, 1),
    Sketcher.Constraint("Horizontal", 2, 2, 22, 1),
    Sketcher.Constraint("Horizontal", 7, 1, 25, 1),
    Sketcher.Constraint("Horizontal", 29, 1, 35, 1),
    Sketcher.Constraint("Horizontal", 57, 1, 67, 1),
    Sketcher.Constraint("Horizontal", 53, 1, 71, 1),
    Sketcher.Constraint("Horizontal", 49, 1, 75, 1),
    Sketcher.Constraint("Vertical", 35, 1, 43, 1),
    Sketcher.Constraint("Vertical", 25, 1, 49, 1),
    Sketcher.Constraint("Vertical", 21, 1, 53, 1),
    Sketcher.Constraint("Equal", 1, 2),
    Sketcher.Constraint("Equal", 2, 5),
    Sketcher.Constraint("Equal", 5, 6),
    Sketcher.Constraint("Equal", 6, 9),
    Sketcher.Constraint("Equal", 9, 10),
    Sketcher.Constraint("Equal", 10, 14),
    Sketcher.Constraint("Equal", 27, 28),
    Sketcher.Constraint("Equal", 28, 31),
    Sketcher.Constraint("Equal", 34, 37),
    Sketcher.Constraint("Equal", 76, 77),
    Sketcher.Constraint("Radius", 0, 6.0),
    Sketcher.Constraint("Angle", 78, Q("72 deg")),
    Sketcher.Constraint("Distance", 78, 1.88),
    Sketcher.Constraint("DistanceX", -1, 1, 7, 1, 4.854101),
    Sketcher.Constraint("DistanceY", 21, 1, -1, 1, 4.854102),
    Sketcher.Constraint("DistanceY", -1, 1, 43, 1, 1.8541),
    Sketcher.Constraint("DistanceX", 57, 1, -1, 1, 1.8541),
    Sketcher.Constraint("Distance", 76, 1.066759),
    Sketcher.Constraint("DistanceY", 0, 1, -1, 1, 5.296232),
    Sketcher.Constraint("DistanceX", -1, 1, 1, 2, 3.230259),
    Sketcher.Constraint("DistanceY", 1, 2, -1, 1, 4.44607),
    Sketcher.Constraint("DistanceY", 11, 1, -1, 1, 5.706339),
    Sketcher.Constraint("DistanceY", 13, 1, -1, 1, 5.942038),
])
pocket2 = doc.addObject("PartDesign::Pocket", "Pocket001")
body.addObject(pocket2)
pocket2.Profile = sketch3
pocket2.Length = 7
pocket2.Reversed = True
doc.recompute()

chamfer = doc.addObject("PartDesign::Chamfer", "Chamfer")
body.addObject(chamfer)
chamfer.Base = (pocket2, edges_at(pocket2, [(0, 0, -1.5), (0, 8.5, -1.5)]))
chamfer.Size = 0.5

doc.recompute()
